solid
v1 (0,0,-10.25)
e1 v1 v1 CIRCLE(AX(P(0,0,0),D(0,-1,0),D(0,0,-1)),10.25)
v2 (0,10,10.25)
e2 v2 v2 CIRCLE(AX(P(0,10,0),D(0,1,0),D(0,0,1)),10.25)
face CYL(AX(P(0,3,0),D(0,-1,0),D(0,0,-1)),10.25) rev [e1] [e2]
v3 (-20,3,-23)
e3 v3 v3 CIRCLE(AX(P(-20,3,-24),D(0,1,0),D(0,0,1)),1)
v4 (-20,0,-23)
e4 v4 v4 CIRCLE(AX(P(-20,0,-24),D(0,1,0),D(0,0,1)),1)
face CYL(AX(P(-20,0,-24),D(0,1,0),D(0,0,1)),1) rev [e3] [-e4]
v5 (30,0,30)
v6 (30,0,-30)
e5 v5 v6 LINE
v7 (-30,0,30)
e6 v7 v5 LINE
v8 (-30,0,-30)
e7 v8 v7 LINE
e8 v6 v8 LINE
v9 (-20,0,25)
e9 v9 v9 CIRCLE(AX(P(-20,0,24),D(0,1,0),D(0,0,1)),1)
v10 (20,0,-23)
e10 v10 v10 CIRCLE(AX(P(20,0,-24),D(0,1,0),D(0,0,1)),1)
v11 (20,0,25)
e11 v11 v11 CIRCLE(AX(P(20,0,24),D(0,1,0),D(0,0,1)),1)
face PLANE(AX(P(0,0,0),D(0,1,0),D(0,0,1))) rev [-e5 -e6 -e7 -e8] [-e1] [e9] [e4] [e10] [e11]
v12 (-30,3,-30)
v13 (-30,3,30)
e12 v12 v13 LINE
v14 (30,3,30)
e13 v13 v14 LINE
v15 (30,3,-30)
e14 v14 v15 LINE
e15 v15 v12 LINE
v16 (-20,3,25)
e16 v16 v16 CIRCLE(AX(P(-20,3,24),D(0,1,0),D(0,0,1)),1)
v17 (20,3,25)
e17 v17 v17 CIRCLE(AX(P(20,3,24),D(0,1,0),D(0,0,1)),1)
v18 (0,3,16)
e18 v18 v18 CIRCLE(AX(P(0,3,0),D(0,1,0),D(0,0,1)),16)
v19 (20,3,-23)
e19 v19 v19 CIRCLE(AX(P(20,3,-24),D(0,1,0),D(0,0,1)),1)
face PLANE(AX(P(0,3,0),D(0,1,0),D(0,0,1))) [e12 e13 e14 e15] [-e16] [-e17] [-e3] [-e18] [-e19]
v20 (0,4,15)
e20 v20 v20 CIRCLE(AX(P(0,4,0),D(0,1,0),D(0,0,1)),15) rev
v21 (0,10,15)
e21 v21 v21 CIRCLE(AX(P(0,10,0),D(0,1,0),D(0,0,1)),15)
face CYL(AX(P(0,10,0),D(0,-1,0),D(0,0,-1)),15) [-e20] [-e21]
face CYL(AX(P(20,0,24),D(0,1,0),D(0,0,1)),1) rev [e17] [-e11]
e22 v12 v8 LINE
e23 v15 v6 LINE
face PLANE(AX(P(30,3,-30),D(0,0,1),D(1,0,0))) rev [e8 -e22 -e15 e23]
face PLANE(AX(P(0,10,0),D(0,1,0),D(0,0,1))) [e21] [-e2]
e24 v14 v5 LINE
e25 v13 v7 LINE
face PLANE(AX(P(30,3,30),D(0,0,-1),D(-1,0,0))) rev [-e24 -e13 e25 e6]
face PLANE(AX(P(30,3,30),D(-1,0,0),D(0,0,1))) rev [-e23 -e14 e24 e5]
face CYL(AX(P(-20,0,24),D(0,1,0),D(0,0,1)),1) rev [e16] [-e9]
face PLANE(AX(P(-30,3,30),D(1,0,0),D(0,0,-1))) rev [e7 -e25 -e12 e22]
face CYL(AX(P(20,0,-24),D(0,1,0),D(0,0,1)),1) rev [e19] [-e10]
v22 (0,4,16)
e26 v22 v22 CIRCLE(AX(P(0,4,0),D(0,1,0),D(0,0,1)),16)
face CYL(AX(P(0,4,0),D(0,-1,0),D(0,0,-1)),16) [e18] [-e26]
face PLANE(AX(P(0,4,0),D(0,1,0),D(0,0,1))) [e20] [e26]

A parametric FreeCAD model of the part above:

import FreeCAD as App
import Part
import Sketcher

V = App.Vector


def add_polygon(sketch, points):
    """Adds a closed chain of lines whose ends are joined by coincident constraints."""
    first, n = sketch.GeometryCount, len(points)
    for a, b in zip(points, points[1:] + points[:1]):
        sketch.addGeometry(Part.LineSegment(App.Vector(*a, 0), App.Vector(*b, 0)), False)
    for i in range(n):
        sketch.addConstraint(Sketcher.Constraint("Coincident", first + i, 2, first + (i + 1) % n, 1))

doc = App.newDocument("Part")
body = doc.addObject("PartDesign::Body", "Body")

sketch1 = body.newObject("Sketcher::SketchObject", "Sketch")
sketch1.AttachmentSupport = (doc.getObject("XZ_Plane"), [""])
sketch1.MapMode = "FlatFace"
add_polygon(sketch1, [(-30, -30), (-30, 30), (30, 30), (30, -30)])
sketch1.addConstraint([
    Sketcher.Constraint("Vertical", 0),
    Sketcher.Constraint("Horizontal", 1),
    Sketcher.Constraint("Vertical", 2),
    Sketcher.Constraint("Horizontal", 3),
    Sketcher.Constraint("Symmetric", 0, 2, 2, 2, -1, 1),
    Sketcher.Constraint("Equal", 3, 0),
    Sketcher.Constraint("DistanceX", 1, 1, 1, 2, 60.0),
])
pad1 = body.newObject("PartDesign::Pad", "Pad")
pad1.Profile = sketch1
pad1.Length = 3
pad1.Reversed = True

sketch2 = body.newObject("Sketcher::SketchObject", "Sketch001")
sketch2.AttachmentSupport = (doc.getObject("XZ_Plane"), [""])
sketch2.MapMode = "FlatFace"
sketch2.AttachmentOffset = App.Placement(V(0, 0, -3), App.Rotation())
sketch2.addGeometry([
    Part.Circle(V(-20, -24, 0), V(0, 0, 1), 1),
    Part.Circle(V(20, -24, 0), V(0, 0, 1), 1),
    Part.Circle(V(-20, 24, 0), V(0, 0, 1), 1),
    Part.Circle(V(20, 24, 0), V(0, 0, 1), 1),
], False)
sketch2.addConstraint([
    Sketcher.Constraint("Equal", 0, 1),
    Sketcher.Constraint("Equal", 1, 2),
    Sketcher.Constraint("Equal", 2, 3),
    Sketcher.Constraint("Symmetric", 1, 3, 2, 3, -1, 1),
    Sketcher.Constraint("Symmetric", 0, 3, 3, 3, -1, 1),
    Sketcher.Constraint("Symmetric", 0, 3, 1, 3, -2),
    Sketcher.Constraint("Diameter", 0, 2.0),
    Sketcher.Constraint("DistanceX", 0, 3, -1, 1, 20.0),
    Sketcher.Constraint("DistanceY", 0, 3, -1, 1, 24.0),
])
pocket1 = body.newObject("PartDesign::Pocket", "Pocket")
pocket1.Profile = sketch2
pocket1.Type = "ThroughAll"
pocket1.Reversed = True

sketch3 = body.newObject("Sketcher::SketchObject", "Sketch002")
sketch3.AttachmentSupport = (doc.getObject("XZ_Plane"), [""])
sketch3.MapMode = "FlatFace"
sketch3.addGeometry(Part.Circle(V(0, 0, 0), V(0, 0, 1), 10.25), False)
sketch3.addConstraint([
    Sketcher.Constraint("Coincident", 0, 3, -1, 1),
    Sketcher.Constraint("Diameter", 0, 20.5),
])
pocket2 = body.newObject("PartDesign::Pocket", "Pocket001")
pocket2.Profile = sketch3
pocket2.Type = "ThroughAll"

sketch4 = body.newObject("Sketcher::SketchObject", "Sketch003")
sketch4.AttachmentSupport = (doc.getObject("XZ_Plane"), [""])
sketch4.MapMode = "FlatFace"
sketch4.AttachmentOffset = App.Placement(V(0, 0, -3), App.Rotation())
sketch4.addGeometry([
    Part.Circle(V(0, 0, 0), V(0, 0, 1), 16),
    Part.Circle(V(0, 0, 0), V(0, 0, 1), 10.25),
], False)
sketch4.addConstraint([
    Sketcher.Constraint("Coincident", 0, 3, -1, 1),
    Sketcher.Constraint("Coincident", 1, 3, -1, 1),
    Sketcher.Constraint("Diameter", 0, 32.0),
    Sketcher.Constraint("Diameter", 1, 20.5),
])
pad2 = body.newObject("PartDesign::Pad", "Pad001")
pad2.Profile = sketch4
pad2.Length = 1
pad2.Reversed = True

sketch5 = body.newObject("Sketcher::SketchObject", "Sketch004")
sketch5.AttachmentSupport = (doc.getObject("XZ_Plane"), [""])
sketch5.MapMode = "FlatFace"
sketch5.AttachmentOffset = App.Placement(V(0, 0, -3), App.Rotation())
sketch5.addGeometry([
    Part.Circle(V(0, 0, 0), V(0, 0, 1), 15),
    Part.Circle(V(0, 0, 0), V(0, 0, 1), 10.25),
], False)
sketch5.addConstraint([
    Sketcher.Constraint("Coincident", 0, 3, -1, 1),
    Sketcher.Constraint("Coincident", 1, 3, -1, 1),
    Sketcher.Constraint("Diameter", 0, 30.0),
    Sketcher.Constraint("Diameter", 1, 20.5),
])
pad3 = body.newObject("PartDesign::Pad", "Pad002")
pad3.Profile = sketch5
pad3.Length = 7
pad3.Reversed = True

doc.recompute()
